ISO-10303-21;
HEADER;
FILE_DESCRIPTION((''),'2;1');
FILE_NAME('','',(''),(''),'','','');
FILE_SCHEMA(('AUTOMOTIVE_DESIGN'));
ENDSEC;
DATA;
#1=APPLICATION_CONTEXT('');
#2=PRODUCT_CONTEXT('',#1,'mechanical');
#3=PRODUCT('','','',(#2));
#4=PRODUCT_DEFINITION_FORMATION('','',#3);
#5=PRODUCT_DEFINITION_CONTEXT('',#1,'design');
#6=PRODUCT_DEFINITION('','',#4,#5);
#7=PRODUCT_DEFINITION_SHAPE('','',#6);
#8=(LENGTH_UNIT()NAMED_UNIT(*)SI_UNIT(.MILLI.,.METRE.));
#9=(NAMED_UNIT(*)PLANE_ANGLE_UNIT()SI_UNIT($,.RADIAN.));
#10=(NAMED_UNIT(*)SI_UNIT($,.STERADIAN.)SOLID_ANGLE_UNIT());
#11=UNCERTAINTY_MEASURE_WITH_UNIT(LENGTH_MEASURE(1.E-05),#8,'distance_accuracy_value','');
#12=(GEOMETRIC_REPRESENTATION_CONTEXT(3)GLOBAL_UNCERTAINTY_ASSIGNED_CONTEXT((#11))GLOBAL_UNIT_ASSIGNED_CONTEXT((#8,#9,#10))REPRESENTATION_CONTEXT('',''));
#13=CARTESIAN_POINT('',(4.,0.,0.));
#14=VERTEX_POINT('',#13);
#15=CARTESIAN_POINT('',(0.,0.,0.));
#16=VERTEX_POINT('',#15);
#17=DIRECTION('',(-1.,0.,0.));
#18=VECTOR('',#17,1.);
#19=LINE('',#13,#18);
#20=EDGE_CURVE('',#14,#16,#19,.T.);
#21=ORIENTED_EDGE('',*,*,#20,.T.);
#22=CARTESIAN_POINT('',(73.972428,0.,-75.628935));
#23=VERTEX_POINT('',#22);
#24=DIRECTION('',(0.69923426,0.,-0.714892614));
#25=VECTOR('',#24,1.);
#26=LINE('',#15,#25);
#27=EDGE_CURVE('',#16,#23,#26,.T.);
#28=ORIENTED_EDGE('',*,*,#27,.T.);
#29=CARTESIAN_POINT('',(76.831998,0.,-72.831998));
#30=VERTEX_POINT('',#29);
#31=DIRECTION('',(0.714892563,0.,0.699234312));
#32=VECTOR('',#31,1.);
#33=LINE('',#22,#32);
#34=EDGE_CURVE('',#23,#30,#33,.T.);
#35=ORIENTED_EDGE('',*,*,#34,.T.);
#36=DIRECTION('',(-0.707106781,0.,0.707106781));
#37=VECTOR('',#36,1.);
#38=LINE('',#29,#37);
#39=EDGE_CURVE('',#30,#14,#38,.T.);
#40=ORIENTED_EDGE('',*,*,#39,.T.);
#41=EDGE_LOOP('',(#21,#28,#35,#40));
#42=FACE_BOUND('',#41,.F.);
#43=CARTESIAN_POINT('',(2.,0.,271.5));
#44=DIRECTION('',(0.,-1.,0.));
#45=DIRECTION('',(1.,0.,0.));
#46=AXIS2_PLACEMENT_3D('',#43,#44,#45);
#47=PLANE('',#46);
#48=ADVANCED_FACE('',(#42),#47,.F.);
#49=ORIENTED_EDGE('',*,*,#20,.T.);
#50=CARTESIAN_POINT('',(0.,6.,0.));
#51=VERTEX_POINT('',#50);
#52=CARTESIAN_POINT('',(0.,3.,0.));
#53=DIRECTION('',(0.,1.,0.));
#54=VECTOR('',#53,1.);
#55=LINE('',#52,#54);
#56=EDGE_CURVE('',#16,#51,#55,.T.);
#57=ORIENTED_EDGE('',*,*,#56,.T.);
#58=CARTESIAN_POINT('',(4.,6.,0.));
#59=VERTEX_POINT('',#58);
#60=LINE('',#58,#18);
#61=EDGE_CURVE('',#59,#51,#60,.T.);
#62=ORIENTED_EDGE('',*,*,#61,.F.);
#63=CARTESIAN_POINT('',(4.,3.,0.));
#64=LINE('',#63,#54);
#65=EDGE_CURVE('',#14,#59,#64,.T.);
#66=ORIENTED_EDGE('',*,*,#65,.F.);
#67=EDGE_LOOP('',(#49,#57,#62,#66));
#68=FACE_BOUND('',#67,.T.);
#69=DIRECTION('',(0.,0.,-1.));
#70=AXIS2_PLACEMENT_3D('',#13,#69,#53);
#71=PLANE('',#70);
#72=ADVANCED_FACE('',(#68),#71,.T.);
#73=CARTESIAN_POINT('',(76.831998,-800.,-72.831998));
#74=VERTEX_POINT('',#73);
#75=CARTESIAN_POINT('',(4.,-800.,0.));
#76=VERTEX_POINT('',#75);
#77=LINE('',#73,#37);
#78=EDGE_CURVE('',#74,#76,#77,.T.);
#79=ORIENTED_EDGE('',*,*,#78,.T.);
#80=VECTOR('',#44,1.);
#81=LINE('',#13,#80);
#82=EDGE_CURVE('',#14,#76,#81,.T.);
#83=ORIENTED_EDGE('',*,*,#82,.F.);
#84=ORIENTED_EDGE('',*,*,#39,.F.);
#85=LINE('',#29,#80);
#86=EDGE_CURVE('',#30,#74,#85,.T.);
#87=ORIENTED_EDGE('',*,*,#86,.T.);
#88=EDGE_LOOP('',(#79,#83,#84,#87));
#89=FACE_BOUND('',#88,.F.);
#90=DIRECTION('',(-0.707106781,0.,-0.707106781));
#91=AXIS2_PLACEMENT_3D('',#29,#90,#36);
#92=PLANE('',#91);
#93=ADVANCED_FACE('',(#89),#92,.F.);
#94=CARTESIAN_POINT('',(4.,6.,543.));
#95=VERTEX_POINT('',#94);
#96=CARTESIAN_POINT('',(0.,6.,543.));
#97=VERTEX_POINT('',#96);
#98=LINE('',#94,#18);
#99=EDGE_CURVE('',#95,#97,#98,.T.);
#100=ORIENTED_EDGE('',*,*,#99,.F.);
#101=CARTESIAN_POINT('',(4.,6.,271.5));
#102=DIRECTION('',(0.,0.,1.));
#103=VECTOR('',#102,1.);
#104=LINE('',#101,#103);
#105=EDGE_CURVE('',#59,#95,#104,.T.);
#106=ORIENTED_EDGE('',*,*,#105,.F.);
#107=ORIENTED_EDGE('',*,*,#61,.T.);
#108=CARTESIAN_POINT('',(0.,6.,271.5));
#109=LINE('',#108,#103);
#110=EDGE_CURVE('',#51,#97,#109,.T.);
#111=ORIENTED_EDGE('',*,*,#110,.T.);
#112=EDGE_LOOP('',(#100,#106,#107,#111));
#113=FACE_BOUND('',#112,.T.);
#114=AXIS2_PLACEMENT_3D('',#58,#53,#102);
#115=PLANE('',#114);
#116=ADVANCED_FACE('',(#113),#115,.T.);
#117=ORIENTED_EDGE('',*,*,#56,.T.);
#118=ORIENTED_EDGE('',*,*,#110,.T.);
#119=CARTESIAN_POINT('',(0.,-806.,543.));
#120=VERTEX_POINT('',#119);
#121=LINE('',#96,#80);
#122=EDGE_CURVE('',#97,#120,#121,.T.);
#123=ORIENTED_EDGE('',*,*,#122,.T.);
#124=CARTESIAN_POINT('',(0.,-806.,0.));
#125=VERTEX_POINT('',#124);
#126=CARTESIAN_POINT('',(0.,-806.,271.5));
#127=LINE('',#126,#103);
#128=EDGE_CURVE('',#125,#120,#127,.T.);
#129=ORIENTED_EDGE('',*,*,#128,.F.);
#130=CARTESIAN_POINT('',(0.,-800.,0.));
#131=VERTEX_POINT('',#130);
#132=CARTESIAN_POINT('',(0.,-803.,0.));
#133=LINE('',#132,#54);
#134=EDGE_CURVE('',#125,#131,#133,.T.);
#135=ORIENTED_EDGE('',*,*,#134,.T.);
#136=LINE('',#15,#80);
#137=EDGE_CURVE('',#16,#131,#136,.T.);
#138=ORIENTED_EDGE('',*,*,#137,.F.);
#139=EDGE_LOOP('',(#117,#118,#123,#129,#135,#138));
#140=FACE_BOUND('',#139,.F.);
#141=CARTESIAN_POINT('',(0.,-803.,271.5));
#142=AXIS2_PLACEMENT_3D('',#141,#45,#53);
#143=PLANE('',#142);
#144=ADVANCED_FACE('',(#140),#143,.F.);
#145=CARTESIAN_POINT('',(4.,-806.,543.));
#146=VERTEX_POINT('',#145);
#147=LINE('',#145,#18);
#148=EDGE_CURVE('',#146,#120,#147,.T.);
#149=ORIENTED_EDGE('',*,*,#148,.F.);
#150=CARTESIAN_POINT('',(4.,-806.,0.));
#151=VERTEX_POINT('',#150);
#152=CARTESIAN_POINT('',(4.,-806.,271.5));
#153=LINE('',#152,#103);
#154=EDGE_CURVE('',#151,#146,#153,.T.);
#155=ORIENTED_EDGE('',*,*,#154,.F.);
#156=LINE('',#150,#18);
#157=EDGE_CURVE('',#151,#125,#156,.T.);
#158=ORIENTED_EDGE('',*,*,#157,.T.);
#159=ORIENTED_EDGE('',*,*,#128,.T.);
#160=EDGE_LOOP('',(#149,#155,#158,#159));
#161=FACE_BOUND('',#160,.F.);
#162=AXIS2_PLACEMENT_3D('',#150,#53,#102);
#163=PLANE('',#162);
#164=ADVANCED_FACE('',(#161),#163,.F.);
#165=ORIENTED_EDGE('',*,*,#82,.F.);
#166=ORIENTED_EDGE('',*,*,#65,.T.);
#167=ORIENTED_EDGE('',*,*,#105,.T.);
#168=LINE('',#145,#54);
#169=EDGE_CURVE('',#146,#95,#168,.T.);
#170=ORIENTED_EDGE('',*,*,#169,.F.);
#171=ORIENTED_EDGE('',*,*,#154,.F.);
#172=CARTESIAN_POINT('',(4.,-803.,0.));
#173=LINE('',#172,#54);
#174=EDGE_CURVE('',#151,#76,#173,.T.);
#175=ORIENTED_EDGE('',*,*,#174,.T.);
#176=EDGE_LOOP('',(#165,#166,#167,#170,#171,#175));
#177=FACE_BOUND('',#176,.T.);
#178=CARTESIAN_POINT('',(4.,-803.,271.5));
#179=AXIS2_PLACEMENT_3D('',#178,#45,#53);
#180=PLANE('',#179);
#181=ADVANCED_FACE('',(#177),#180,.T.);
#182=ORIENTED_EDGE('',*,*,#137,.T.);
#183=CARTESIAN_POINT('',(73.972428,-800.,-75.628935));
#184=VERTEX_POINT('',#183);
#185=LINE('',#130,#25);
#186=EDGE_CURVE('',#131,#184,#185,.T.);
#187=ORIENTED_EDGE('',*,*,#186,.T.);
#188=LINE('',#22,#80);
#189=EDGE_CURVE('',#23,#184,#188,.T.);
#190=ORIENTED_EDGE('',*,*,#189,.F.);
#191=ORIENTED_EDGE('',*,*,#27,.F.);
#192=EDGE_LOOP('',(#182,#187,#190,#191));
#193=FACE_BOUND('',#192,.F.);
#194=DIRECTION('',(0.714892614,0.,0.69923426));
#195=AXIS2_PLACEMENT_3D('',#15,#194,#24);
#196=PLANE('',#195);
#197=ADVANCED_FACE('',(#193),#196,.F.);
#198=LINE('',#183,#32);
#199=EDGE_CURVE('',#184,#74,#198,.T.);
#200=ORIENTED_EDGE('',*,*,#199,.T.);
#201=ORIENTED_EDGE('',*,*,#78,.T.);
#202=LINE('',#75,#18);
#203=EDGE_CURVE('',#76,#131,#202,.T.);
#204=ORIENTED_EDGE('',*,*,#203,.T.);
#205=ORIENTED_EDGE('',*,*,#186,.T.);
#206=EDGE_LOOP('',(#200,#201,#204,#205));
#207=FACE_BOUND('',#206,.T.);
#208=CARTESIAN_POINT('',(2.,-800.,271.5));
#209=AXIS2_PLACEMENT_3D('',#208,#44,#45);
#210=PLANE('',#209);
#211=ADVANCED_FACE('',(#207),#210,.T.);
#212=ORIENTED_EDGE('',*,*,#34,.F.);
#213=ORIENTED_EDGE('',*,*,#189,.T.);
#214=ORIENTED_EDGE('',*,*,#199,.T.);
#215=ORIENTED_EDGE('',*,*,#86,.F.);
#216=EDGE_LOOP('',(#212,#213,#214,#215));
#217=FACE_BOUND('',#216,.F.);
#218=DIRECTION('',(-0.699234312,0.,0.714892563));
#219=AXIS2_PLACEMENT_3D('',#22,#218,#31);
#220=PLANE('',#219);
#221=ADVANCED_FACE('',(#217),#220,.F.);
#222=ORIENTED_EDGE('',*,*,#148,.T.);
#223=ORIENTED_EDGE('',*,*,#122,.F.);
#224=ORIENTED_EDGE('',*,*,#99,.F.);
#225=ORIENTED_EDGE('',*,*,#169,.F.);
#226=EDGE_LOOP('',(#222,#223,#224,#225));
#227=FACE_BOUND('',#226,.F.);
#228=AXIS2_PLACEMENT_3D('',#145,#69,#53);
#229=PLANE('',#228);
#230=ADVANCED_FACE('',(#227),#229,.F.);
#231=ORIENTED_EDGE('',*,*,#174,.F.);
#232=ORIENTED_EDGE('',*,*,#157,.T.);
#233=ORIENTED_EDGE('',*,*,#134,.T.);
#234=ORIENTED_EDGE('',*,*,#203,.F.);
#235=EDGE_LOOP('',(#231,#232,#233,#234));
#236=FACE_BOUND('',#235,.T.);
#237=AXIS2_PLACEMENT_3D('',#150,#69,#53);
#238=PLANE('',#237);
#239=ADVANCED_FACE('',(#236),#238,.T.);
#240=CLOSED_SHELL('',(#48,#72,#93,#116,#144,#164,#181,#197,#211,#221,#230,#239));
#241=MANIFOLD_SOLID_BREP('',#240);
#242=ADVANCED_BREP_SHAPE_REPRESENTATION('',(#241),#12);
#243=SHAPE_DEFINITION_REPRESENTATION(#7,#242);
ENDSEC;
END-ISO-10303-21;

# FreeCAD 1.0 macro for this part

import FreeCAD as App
import Part
import Sketcher

V = App.Vector
Q = App.Units.Quantity

doc = App.newDocument("Part")
body = doc.addObject("PartDesign::Body", "Body")

sketch1 = body.newObject("Sketcher::SketchObject", "Sketch")
sketch1.AttachmentSupport = (doc.getObject("XZ_Plane"), [""])
sketch1.MapMode = "FlatFace"
sketch1.addGeometry(Part.LineSegment(V(0, 543, 0), V(0, 0, 0)), False)
sketch1.addGeometry(Part.LineSegment(V(0, 0, 0), V(73.972428, -75.628935, 0)), False)
sketch1.addGeometry(Part.LineSegment(V(73.972428, -75.628935, 0), V(76.831998, -72.831998, 0)), False)
sketch1.addGeometry(Part.LineSegment(V(76.831998, -72.831998, 0), V(4, 0, 0)), False)
sketch1.addGeometry(Part.LineSegment(V(4, 0, 0), V(4, 543, 0)), False)
sketch1.addGeometry(Part.LineSegment(V(4, 543, 0), V(0, 543, 0)), False)
sketch1.addConstraint(Sketcher.Constraint("Coincident", 0, 2, 1, 1))
sketch1.addConstraint(Sketcher.Constraint("Coincident", 1, 2, 2, 1))
sketch1.addConstraint(Sketcher.Constraint("Coincident", 2, 2, 3, 1))
sketch1.addConstraint(Sketcher.Constraint("Coincident", 3, 2, 4, 1))
sketch1.addConstraint(Sketcher.Constraint("Coincident", 4, 2, 5, 1))
sketch1.addConstraint(Sketcher.Constraint("Coincident", 5, 2, 0, 1))
sketch1.addConstraint(Sketcher.Constraint("Vertical", 0))
sketch1.addConstraint(Sketcher.Constraint("Vertical", 4))
sketch1.addConstraint(Sketcher.Constraint("Horizontal", 5))
sketch1.addConstraint(Sketcher.Constraint("Coincident", 0, 2, -1, 1))
sketch1.addConstraint(Sketcher.Constraint("PointOnObject", 3, 2, -1))
sketch1.addConstraint(Sketcher.Constraint("Perpendicular", 1, 2))
sketch1.addConstraint(Sketcher.Constraint("DistanceX", 5, 2, 5, 1, Q("4 mm")))
sketch1.addConstraint(Sketcher.Constraint("DistanceY", 0, 2, 0, 1, Q("543 mm")))
sketch1.addConstraint(Sketcher.Constraint("Angle", 3, Q("135 deg")))
sketch1.addConstraint(Sketcher.Constraint("Distance", 2, Q("4 mm")))
sketch1.addConstraint(Sketcher.Constraint("Distance", 3, Q("102.999999 mm")))
pad1 = body.newObject("PartDesign::Pad", "Pad")
pad1.Profile = sketch1
pad1.Length = 800

sketch2 = body.newObject("Sketcher::SketchObject", "Sketch001")
sketch2.AttachmentSupport = (doc.getObject("YZ_Plane"), [""])
sketch2.MapMode = "FlatFace"
sketch2.AttachmentOffset = App.Placement(V(0, 0, 4), App.Rotation())
sketch2.addGeometry(Part.LineSegment(V(-806, 543, 0), V(-806, 0, 0)), False)
sketch2.addGeometry(Part.LineSegment(V(-806, 0, 0), V(-800, 0, 0)), False)
sketch2.addGeometry(Part.LineSegment(V(-800, 0, 0), V(-800, 543, 0)), False)
sketch2.addGeometry(Part.LineSegment(V(-800, 543, 0), V(-806, 543, 0)), False)
sketch2.addGeometry(Part.LineSegment(V(0, 543, 0), V(0, 0, 0)), False)
sketch2.addGeometry(Part.LineSegment(V(0, 0, 0), V(6, 0, 0)), False)
sketch2.addGeometry(Part.LineSegment(V(6, 0, 0), V(6, 543, 0)), False)
sketch2.addGeometry(Part.LineSegment(V(6, 543, 0), V(0, 543, 0)), False)
sketch2.addConstraint(Sketcher.Constraint("Coincident", 0, 2, 1, 1))
sketch2.addConstraint(Sketcher.Constraint("Coincident", 1, 2, 2, 1))
sketch2.addConstraint(Sketcher.Constraint("Coincident", 2, 2, 3, 1))
sketch2.addConstraint(Sketcher.Constraint("Coincident", 3, 2, 0, 1))
sketch2.addConstraint(Sketcher.Constraint("Coincident", 4, 2, 5, 1))
sketch2.addConstraint(Sketcher.Constraint("Coincident", 5, 2, 6, 1))
sketch2.addConstraint(Sketcher.Constraint("Coincident", 6, 2, 7, 1))
sketch2.addConstraint(Sketcher.Constraint("Coincident", 7, 2, 4, 1))
sketch2.addConstraint(Sketcher.Constraint("Vertical", 0))
sketch2.addConstraint(Sketcher.Constraint("Horizontal", 1))
sketch2.addConstraint(Sketcher.Constraint("Vertical", 2))
sketch2.addConstraint(Sketcher.Constraint("Horizontal", 3))
sketch2.addConstraint(Sketcher.Constraint("Vertical", 4))
sketch2.addConstraint(Sketcher.Constraint("Horizontal", 5))
sketch2.addConstraint(Sketcher.Constraint("Vertical", 6))
sketch2.addConstraint(Sketcher.Constraint("Horizontal", 7))
sketch2.addConstraint(Sketcher.Constraint("Coincident", 4, 2, -1, 1))
sketch2.addConstraint(Sketcher.Constraint("PointOnObject", 0, 2, -1))
sketch2.addConstraint(Sketcher.Constraint("Horizontal", 3, 2, 6, 2))
sketch2.addConstraint(Sketcher.Constraint("Equal", 3, 5))
sketch2.addConstraint(Sketcher.Constraint("DistanceX", 1, 1, 1, 2, Q("6 mm")))
sketch2.addConstraint(Sketcher.Constraint("DistanceY", 0, 2, 0, 1, Q("543 mm")))
sketch2.addConstraint(Sketcher.Constraint("DistanceX", 0, 2, -1, 1, Q("806 mm")))
pad2 = body.newObject("PartDesign::Pad", "Pad001")
pad2.Profile = sketch2
pad2.Length = 4
pad2.Reversed = True

doc.recompute()
